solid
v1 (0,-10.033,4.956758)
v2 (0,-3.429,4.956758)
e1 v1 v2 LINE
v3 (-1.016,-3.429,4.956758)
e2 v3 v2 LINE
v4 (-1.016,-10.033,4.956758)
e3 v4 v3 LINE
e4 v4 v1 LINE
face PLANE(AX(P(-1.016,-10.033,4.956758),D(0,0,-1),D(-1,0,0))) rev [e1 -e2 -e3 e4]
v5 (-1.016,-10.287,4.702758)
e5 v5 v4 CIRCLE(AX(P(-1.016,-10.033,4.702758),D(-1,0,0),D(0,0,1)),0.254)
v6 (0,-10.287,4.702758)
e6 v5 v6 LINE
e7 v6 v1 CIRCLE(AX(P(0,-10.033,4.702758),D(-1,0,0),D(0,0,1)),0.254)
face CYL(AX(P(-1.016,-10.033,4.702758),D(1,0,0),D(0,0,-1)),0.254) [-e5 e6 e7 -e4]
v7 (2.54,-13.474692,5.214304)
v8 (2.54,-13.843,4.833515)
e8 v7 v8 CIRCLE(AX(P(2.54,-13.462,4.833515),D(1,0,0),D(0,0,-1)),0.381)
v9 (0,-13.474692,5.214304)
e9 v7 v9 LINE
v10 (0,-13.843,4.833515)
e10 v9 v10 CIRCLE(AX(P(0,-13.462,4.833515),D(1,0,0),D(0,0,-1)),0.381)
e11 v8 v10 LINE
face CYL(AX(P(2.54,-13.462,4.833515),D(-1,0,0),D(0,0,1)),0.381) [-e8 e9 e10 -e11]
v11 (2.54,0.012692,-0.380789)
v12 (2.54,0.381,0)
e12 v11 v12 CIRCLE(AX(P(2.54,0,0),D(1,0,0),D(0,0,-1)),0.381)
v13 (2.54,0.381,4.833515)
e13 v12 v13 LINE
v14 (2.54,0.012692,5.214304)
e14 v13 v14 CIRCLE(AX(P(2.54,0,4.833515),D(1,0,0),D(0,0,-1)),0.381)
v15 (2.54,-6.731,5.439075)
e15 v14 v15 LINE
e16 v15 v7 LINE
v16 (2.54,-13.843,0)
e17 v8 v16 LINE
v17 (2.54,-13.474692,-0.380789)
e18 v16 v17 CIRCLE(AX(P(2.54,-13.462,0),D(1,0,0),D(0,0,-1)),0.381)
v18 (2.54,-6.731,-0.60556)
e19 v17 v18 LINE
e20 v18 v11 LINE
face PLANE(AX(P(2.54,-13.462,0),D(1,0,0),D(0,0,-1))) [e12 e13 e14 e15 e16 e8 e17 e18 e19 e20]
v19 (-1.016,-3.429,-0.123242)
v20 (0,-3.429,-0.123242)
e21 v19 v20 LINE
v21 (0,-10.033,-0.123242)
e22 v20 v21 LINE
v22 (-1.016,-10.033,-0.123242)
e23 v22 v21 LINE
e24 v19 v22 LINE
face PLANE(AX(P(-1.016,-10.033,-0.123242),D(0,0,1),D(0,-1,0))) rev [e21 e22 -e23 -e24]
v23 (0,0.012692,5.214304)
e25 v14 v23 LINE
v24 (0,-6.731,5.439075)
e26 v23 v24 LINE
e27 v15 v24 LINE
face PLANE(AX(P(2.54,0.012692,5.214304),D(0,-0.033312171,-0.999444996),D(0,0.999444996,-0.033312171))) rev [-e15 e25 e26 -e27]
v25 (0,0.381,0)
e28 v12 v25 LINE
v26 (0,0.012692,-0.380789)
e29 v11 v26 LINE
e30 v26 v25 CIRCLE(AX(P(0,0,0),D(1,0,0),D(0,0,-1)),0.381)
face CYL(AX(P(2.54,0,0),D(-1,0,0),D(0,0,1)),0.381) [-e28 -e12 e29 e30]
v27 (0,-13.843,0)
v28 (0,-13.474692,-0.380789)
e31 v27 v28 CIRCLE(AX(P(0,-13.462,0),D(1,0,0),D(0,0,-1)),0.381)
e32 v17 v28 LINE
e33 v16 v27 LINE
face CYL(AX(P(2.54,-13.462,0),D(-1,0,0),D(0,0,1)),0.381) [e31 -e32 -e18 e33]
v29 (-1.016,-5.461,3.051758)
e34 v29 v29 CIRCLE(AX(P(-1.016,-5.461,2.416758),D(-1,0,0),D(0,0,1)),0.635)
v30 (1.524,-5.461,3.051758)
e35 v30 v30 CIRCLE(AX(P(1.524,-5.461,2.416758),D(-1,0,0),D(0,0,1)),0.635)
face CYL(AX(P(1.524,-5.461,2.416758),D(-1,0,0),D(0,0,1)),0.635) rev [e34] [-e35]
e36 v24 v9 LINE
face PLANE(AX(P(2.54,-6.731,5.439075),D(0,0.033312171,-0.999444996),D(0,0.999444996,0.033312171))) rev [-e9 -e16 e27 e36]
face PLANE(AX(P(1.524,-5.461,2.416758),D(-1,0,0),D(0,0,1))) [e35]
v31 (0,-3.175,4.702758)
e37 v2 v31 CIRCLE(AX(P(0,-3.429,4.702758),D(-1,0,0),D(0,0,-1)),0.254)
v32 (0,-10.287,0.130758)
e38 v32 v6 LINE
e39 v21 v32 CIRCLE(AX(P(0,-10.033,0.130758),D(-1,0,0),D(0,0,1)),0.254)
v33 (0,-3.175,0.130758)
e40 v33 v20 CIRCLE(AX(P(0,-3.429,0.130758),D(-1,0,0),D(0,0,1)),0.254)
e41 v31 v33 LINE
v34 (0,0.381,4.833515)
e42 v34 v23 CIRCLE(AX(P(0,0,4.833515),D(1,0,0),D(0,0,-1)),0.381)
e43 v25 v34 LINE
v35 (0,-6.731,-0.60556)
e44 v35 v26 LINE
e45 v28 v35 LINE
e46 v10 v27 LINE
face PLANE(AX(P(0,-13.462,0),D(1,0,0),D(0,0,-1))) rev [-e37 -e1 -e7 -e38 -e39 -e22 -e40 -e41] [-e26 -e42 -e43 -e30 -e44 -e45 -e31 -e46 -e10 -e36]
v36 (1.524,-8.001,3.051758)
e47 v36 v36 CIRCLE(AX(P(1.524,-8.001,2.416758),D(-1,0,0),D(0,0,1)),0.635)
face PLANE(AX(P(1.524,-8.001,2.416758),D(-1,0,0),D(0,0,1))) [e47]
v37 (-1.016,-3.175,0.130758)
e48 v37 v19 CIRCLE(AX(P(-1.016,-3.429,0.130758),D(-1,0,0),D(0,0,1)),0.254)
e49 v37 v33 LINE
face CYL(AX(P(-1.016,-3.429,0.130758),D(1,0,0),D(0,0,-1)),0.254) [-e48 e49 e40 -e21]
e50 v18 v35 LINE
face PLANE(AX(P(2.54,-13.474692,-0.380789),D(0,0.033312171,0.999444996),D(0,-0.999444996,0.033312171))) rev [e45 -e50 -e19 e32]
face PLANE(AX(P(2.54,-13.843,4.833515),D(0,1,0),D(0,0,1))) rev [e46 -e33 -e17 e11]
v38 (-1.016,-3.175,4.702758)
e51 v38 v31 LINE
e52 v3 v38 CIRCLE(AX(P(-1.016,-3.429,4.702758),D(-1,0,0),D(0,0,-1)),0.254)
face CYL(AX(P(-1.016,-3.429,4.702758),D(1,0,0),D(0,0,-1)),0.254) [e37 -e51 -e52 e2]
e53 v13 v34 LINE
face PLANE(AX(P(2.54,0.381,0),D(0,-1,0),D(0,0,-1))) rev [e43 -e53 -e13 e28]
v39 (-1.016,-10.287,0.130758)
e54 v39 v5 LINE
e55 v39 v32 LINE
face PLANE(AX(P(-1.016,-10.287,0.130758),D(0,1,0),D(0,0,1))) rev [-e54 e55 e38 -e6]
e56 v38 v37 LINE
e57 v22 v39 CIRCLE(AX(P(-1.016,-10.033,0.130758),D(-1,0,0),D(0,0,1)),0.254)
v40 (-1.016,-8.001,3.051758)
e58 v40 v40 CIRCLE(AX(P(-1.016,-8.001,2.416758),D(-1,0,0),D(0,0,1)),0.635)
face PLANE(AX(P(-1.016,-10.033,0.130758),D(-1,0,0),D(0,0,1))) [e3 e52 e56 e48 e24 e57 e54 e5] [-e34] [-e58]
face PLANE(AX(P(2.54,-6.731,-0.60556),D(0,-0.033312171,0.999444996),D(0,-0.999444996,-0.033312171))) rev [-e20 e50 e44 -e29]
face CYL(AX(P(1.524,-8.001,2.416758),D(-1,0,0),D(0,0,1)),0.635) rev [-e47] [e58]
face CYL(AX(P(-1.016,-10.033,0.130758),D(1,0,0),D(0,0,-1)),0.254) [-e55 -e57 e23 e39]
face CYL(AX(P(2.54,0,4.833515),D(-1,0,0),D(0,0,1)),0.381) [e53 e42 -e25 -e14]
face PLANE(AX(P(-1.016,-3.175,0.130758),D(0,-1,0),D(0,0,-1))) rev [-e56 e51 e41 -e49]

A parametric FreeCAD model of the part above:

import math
import FreeCAD as App
import Part
import Sketcher

V = App.Vector
Q = App.Units.Quantity

doc = App.newDocument("Part")
body = doc.addObject("PartDesign::Body", "Body")

# Sketch on YZ plane
sketch1 = body.newObject("Sketcher::SketchObject", "Sketch")
sketch1.AttachmentSupport = (doc.getObject("YZ_Plane"), [""])
sketch1.MapMode = "FlatFace"
sketch1.addGeometry([
    Part.LineSegment(V(-13.47, -0.38, 0), V(-6.73, -0.61, 0)),  # 0
    Part.LineSegment(V(-6.73, -0.61, 0), V(0.01, -0.38, 0)),  # 1
    Part.ArcOfCircle(Part.Circle(V(0, 0, 0), V(0, 0, 1), 0.38), math.radians(-88), math.radians(0)),  # 2
    Part.LineSegment(V(0.38, 0, 0), V(0.38, 4.83, 0)),  # 3
    Part.ArcOfCircle(Part.Circle(V(0, 4.83, 0), V(0, 0, 1), 0.38), math.radians(0), math.radians(88)),  # 4
    Part.LineSegment(V(0.01, 5.21, 0), V(-6.73, 5.44, 0)),  # 5
    Part.LineSegment(V(-6.73, 5.44, 0), V(-13.47, 5.21, 0)),  # 6
    Part.ArcOfCircle(Part.Circle(V(-13.46, 4.83, 0), V(0, 0, 1), 0.38), math.radians(92), math.radians(180)),  # 7
    Part.LineSegment(V(-13.84, 4.83, 0), V(-13.84, 0, 0)),  # 8
    Part.ArcOfCircle(Part.Circle(V(-13.46, 0, 0), V(0, 0, 1), 0.38), math.radians(180), math.radians(268)),  # 9
], False)
sketch1.addConstraint([
    Sketcher.Constraint("Coincident", 0, 2, 1, 1),
    Sketcher.Constraint("Tangent", 1, 2, 2, 1),
    Sketcher.Constraint("Tangent", 2, 2, 3, 1),
    Sketcher.Constraint("Tangent", 3, 2, 4, 1),
    Sketcher.Constraint("Tangent", 4, 2, 5, 1),
    Sketcher.Constraint("Coincident", 5, 2, 6, 1),
    Sketcher.Constraint("Tangent", 6, 2, 7, 1),
    Sketcher.Constraint("Tangent", 7, 2, 8, 1),
    Sketcher.Constraint("Tangent", 8, 2, 9, 1),
    Sketcher.Constraint("Tangent", 9, 2, 0, 1),
    Sketcher.Constraint("Vertical", 3),
    Sketcher.Constraint("Vertical", 8),
    Sketcher.Constraint("Coincident", 2, 3, -1, 1),
    Sketcher.Constraint("Equal", 2, 4),
    Sketcher.Constraint("Equal", 4, 7),
    Sketcher.Constraint("Equal", 7, 9),
    Sketcher.Constraint("PointOnObject", 9, 3, -1),
    Sketcher.Constraint("Parallel", 0, 5),
    Sketcher.Constraint("Parallel", 1, 6),
    Sketcher.Constraint("Horizontal", 4, 3, 7, 3),
    Sketcher.Constraint("Vertical", 0, 2, 5, 2),
    Sketcher.Constraint("Radius", 2, Q("0.015 in")),
    Sketcher.Constraint("DistanceX", 7, 3, -1, 1, Q("0.53 in")),
    Sketcher.Constraint("DistanceY", 3, 1, 3, 2, 4.833515),
    Sketcher.Constraint("DistanceY", 0, 2, -1, 1, 0.60556),
])
pad1 = body.newObject("PartDesign::Pad", "Pad")
pad1.Profile = sketch1
pad1.Length = Q("0.1 in")

# Sketch on YZ plane
sketch2 = body.newObject("Sketcher::SketchObject", "Sketch001")
sketch2.AttachmentSupport = (doc.getObject("YZ_Plane"), [""])
sketch2.MapMode = "FlatFace"
sketch2.addGeometry([
    Part.LineSegment(V(-10.29, 0.13, 0), V(-10.29, 4.7, 0)),  # 0
    Part.ArcOfCircle(Part.Circle(V(-10.03, 4.7, 0), V(0, 0, 1), 0.25), math.radians(90), math.radians(180)),  # 1
    Part.LineSegment(V(-10.03, 4.96, 0), V(-3.43, 4.96, 0)),  # 2
    Part.ArcOfCircle(Part.Circle(V(-3.43, 4.7, 0), V(0, 0, 1), 0.25), math.radians(0), math.radians(90)),  # 3
    Part.LineSegment(V(-3.17, 4.7, 0), V(-3.17, 0.13, 0)),  # 4
    Part.ArcOfCircle(Part.Circle(V(-3.43, 0.13, 0), V(0, 0, 1), 0.25), math.radians(-90), math.radians(0)),  # 5
    Part.LineSegment(V(-3.43, -0.12, 0), V(-10.03, -0.12, 0)),  # 6
    Part.ArcOfCircle(Part.Circle(V(-10.03, 0.13, 0), V(0, 0, 1), 0.25), math.radians(180), math.radians(270)),  # 7
], False)
sketch2.addConstraint([
    Sketcher.Constraint("Tangent", 0, 2, 1, 2),
    Sketcher.Constraint("Tangent", 1, 1, 2, 1),
    Sketcher.Constraint("Tangent", 2, 2, 3, 2),
    Sketcher.Constraint("Tangent", 3, 1, 4, 1),
    Sketcher.Constraint("Tangent", 4, 2, 5, 2),
    Sketcher.Constraint("Tangent", 5, 1, 6, 1),
    Sketcher.Constraint("Tangent", 6, 2, 7, 2),
    Sketcher.Constraint("Tangent", 7, 1, 0, 1),
    Sketcher.Constraint("Vertical", 0),
    Sketcher.Constraint("Horizontal", 2),
    Sketcher.Constraint("Vertical", 4),
    Sketcher.Constraint("Horizontal", 6),
    Sketcher.Constraint("Equal", 1, 3),
    Sketcher.Constraint("Equal", 3, 5),
    Sketcher.Constraint("Equal", 5, 7),
    Sketcher.Constraint("Radius", 1, Q("0.01 in")),
    Sketcher.Constraint("DistanceX", 2, 1, 2, 2, Q("0.26 in")),
    Sketcher.Constraint("DistanceY", 0, 1, 0, 2, Q("0.18 in")),
    Sketcher.Constraint("DistanceX", 1, 3, -1, 1, Q("0.395 in")),
    Sketcher.Constraint("DistanceY", -1, 1, 1, 3, 4.702758),
])
pad2 = body.newObject("PartDesign::Pad", "Pad001")
pad2.Profile = sketch2
pad2.Length = Q("0.04 in")
pad2.Reversed = True

# Sketch on YZ plane
sketch3 = body.newObject("Sketcher::SketchObject", "Sketch002")
sketch3.AttachmentSupport = (doc.getObject("YZ_Plane"), [""])
sketch3.MapMode = "FlatFace"
sketch3.AttachmentOffset = App.Placement(V(0, 0, -0.04 * 25.4), App.Rotation())
sketch3.addGeometry([
    Part.Circle(V(-5.5, 2.4, 0), V(0, 0, 1), 0.6),
    Part.Circle(V(-8, 2.4, 0), V(0, 0, 1), 0.6),
], False)
sketch3.addConstraint([
    Sketcher.Constraint("Equal", 0, 1),
    Sketcher.Constraint("Horizontal", 0, 3, 1, 3),
    Sketcher.Constraint("Diameter", 0, Q("0.05 in")),
    Sketcher.Constraint("DistanceX", 1, 3, 0, 3, Q("0.1 in")),
    Sketcher.Constraint("DistanceX", 0, 3, -1, 1, Q("0.215 in")),
    Sketcher.Constraint("DistanceY", -1, 1, 0, 3, 2.416758),
])
pocket1 = body.newObject("PartDesign::Pocket", "Pocket")
pocket1.Profile = sketch3
pocket1.Length = Q("0.1 in")
pocket1.Reversed = True

doc.recompute()
